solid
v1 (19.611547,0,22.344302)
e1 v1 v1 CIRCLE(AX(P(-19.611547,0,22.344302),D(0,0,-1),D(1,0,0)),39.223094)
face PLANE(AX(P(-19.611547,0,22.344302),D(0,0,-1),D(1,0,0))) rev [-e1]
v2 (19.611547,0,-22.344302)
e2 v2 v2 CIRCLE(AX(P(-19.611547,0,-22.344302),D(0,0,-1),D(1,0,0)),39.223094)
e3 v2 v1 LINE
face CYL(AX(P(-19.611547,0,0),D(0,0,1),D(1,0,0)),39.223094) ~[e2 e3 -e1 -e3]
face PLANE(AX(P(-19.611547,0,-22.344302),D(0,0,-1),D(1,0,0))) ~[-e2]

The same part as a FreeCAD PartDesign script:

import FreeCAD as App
import Part
import Sketcher
Q = App.Units.Quantity


def add_polygon(sketch, points):
    """Adds a closed chain of lines whose ends are joined by coincident constraints."""
    first, n = sketch.GeometryCount, len(points)
    for a, b in zip(points, points[1:] + points[:1]):
        sketch.addGeometry(Part.LineSegment(App.Vector(*a, 0), App.Vector(*b, 0)), False)
    for i in range(n):
        sketch.addConstraint(Sketcher.Constraint("Coincident", first + i, 2, first + (i + 1) % n, 1))

doc = App.newDocument("Part")
body = doc.addObject("PartDesign::Body", "Body")

# Sketch on XZ plane
sketch1 = doc.addObject("Sketcher::SketchObject", "Sketch")
body.addObject(sketch1)
sketch1.AttachmentSupport = (doc.XZ_Plane, [""])
sketch1.MapMode = "FlatFace"
add_polygon(sketch1, [(-20, 22), (-20, -22), (20, -22), (20, 22)])  # lines 0-3
sketch1.addGeometry(Part.LineSegment(App.Vector(-20, 22, 0), App.Vector(-20, -22, 0)), True)  # axis
sketch1.addConstraint(Sketcher.Constraint("Vertical", 0))
sketch1.addConstraint(Sketcher.Constraint("Horizontal", 1))
sketch1.addConstraint(Sketcher.Constraint("Vertical", 2))
sketch1.addConstraint(Sketcher.Constraint("Horizontal", 3))
sketch1.addConstraint(Sketcher.Constraint("Vertical", 4))
sketch1.addConstraint(Sketcher.Constraint("Coincident", 4, 1, 3, 2))
sketch1.addConstraint(Sketcher.Constraint("Symmetric", 0, 2, 2, 2, -1, 1))
sketch1.addConstraint(Sketcher.Constraint("Horizontal", 1, 2, 4, 2))
sketch1.addConstraint(Sketcher.Constraint("DistanceY", 0, 2, -1, 1, Q("22.344302 mm")))
sketch1.addConstraint(Sketcher.Constraint("DistanceX", 1, 1, 1, 2, Q("39.223094 mm")))
revolution = doc.addObject("PartDesign::Revolution", "Revolution")
body.addObject(revolution)
revolution.Profile = sketch1
revolution.ReferenceAxis = (sketch1, ["Axis0"])
revolution.Angle = 360

doc.recompute()
